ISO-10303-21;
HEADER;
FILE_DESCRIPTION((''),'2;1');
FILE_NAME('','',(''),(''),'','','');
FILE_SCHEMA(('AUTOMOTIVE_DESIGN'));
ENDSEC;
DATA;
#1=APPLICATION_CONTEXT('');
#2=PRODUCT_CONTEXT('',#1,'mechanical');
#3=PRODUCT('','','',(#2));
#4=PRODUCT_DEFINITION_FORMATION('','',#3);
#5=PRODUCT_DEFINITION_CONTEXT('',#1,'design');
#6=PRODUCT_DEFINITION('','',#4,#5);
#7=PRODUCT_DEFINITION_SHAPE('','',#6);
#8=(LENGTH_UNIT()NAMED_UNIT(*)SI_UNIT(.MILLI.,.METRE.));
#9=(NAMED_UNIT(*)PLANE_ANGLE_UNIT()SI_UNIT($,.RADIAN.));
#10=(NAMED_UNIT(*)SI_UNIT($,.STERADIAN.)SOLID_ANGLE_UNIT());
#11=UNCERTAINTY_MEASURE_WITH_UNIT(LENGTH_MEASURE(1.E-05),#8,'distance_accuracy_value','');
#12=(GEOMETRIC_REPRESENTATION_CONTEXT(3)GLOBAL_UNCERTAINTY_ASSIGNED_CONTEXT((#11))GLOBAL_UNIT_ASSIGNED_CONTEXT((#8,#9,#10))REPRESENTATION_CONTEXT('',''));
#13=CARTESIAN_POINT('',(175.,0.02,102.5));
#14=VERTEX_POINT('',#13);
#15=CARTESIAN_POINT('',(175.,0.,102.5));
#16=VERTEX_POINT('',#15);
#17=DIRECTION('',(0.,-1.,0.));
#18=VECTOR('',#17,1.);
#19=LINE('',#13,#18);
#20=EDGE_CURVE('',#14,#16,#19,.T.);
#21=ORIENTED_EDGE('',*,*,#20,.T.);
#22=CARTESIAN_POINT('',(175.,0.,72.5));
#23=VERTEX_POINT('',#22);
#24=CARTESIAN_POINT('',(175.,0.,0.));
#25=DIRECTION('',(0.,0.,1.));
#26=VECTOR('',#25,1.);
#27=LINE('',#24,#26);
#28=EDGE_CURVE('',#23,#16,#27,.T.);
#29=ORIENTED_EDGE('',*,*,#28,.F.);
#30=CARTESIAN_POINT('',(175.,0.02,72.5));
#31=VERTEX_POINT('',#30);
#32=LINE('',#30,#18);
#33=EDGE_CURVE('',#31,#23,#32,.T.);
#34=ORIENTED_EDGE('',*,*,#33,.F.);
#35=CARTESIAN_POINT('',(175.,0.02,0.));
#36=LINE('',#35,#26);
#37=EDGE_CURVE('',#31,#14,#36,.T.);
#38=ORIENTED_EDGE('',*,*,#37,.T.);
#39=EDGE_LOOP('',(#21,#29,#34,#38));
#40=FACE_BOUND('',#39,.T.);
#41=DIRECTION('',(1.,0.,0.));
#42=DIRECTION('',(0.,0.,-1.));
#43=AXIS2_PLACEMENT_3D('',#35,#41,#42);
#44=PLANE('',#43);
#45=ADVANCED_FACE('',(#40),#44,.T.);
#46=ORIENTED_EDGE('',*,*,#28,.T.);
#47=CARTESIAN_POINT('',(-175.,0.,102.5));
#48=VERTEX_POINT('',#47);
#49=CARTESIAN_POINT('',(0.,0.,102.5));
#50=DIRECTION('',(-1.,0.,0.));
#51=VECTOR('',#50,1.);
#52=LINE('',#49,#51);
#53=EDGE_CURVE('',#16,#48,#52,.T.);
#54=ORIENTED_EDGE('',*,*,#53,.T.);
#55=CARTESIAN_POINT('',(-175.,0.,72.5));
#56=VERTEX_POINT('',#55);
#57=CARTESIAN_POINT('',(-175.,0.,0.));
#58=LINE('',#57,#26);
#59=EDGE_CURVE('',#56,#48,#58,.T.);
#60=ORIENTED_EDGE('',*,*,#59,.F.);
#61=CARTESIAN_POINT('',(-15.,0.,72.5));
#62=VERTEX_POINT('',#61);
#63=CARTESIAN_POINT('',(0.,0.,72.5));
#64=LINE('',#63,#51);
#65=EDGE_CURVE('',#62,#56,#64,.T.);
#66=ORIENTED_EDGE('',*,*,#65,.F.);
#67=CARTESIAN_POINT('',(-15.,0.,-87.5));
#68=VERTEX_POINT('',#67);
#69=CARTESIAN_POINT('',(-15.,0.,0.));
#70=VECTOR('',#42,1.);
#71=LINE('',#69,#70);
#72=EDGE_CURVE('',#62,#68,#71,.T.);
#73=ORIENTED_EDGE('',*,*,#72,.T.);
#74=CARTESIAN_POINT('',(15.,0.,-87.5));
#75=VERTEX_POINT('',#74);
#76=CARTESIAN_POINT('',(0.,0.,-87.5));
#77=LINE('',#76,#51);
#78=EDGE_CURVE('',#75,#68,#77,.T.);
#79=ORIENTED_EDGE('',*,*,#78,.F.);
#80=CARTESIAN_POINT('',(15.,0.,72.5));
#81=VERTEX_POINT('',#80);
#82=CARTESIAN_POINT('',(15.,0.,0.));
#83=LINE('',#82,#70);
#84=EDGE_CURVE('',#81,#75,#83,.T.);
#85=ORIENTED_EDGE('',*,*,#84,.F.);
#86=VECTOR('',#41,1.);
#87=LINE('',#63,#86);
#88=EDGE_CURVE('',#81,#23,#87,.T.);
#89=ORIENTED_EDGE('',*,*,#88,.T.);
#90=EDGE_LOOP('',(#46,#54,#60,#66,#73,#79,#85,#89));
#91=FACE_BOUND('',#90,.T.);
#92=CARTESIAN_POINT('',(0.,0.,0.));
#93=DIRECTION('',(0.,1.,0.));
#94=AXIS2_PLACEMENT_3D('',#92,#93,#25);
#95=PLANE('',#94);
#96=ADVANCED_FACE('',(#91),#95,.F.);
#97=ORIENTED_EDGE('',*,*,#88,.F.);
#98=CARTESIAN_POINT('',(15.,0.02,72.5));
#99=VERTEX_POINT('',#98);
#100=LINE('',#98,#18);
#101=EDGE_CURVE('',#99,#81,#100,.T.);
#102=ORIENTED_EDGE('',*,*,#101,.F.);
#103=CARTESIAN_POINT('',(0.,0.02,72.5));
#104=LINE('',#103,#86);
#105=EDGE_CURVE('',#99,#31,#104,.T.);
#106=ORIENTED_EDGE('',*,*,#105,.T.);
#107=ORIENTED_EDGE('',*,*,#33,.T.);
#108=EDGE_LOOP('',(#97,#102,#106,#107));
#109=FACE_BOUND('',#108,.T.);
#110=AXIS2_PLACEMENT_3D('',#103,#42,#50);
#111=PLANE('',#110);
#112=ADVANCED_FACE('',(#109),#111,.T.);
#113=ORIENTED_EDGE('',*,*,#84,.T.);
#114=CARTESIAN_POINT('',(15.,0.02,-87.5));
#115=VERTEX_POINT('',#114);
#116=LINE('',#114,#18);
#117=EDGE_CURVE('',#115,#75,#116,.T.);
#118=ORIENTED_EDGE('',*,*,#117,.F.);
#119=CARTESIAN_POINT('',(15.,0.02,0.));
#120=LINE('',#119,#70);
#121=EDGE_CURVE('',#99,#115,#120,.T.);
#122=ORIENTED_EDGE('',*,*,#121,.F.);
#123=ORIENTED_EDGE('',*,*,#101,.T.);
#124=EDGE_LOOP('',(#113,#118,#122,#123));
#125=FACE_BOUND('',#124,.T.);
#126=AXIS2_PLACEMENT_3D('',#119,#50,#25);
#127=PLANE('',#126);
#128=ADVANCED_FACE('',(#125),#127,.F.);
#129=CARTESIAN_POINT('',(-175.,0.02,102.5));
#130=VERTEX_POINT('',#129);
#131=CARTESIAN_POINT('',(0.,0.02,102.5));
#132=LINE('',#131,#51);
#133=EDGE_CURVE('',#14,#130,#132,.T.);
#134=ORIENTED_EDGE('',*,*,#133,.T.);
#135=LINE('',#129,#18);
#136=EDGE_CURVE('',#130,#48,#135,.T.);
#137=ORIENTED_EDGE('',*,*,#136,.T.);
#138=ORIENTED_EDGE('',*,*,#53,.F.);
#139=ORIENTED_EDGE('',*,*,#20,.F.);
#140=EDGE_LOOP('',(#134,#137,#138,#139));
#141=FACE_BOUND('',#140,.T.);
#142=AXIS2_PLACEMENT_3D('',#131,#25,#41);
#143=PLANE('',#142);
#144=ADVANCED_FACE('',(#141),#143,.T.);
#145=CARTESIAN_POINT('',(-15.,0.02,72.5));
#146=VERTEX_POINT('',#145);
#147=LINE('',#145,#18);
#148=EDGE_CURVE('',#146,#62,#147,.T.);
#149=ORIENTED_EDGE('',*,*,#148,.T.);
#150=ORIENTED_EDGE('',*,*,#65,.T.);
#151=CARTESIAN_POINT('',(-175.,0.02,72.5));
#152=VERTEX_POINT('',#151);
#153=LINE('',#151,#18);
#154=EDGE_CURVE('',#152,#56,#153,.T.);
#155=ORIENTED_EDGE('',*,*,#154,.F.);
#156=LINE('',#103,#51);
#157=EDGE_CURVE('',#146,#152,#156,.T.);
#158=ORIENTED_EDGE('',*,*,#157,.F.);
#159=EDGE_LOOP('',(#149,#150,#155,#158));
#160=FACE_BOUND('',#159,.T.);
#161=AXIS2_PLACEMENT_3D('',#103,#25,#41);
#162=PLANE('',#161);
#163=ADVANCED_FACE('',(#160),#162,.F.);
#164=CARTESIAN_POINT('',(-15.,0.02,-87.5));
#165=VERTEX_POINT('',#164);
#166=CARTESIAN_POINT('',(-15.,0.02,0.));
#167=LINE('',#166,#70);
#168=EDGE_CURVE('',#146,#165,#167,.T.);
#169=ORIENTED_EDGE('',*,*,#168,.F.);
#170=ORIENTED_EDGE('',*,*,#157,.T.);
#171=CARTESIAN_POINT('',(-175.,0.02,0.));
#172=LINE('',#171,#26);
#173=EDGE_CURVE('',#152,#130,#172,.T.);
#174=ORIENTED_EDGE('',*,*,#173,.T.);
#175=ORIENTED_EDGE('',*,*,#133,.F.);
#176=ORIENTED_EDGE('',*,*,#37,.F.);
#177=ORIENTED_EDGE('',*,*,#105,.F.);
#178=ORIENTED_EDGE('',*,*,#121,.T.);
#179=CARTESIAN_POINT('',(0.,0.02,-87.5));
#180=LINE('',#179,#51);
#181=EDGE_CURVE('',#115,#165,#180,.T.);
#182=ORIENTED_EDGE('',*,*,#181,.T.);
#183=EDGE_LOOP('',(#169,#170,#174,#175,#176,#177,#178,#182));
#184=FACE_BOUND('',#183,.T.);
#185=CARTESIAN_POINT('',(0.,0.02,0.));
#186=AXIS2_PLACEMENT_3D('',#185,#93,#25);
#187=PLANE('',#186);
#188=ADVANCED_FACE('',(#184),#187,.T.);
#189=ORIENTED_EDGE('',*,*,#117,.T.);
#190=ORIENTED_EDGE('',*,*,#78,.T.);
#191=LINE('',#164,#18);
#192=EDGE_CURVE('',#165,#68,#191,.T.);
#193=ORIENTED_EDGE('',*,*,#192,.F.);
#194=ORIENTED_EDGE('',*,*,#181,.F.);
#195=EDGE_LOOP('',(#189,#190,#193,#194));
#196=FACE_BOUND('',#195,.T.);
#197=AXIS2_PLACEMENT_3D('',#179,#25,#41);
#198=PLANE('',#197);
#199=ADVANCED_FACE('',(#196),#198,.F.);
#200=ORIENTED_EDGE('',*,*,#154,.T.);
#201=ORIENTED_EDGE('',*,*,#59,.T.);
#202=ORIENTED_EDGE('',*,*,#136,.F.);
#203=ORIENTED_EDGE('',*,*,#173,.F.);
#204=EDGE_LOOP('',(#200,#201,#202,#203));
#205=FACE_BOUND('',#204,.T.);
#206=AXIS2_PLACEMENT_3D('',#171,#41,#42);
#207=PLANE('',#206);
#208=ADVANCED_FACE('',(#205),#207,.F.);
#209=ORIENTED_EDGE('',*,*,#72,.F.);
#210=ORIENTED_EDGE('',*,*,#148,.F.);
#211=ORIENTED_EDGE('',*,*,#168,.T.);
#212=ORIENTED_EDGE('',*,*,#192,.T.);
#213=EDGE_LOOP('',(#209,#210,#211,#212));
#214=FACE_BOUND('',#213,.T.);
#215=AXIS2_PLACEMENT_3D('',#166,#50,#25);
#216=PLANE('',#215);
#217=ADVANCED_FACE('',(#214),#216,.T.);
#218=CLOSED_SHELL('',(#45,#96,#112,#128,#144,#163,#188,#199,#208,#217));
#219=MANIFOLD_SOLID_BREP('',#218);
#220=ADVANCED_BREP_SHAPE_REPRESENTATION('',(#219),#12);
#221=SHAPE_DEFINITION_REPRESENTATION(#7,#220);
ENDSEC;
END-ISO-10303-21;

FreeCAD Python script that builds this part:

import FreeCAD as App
import Part
import Sketcher
Q = App.Units.Quantity


def add_polygon(sketch, points):
    """Adds a closed chain of lines whose ends are joined by coincident constraints."""
    first, n = sketch.GeometryCount, len(points)
    for a, b in zip(points, points[1:] + points[:1]):
        sketch.addGeometry(Part.LineSegment(App.Vector(*a, 0), App.Vector(*b, 0)), False)
    for i in range(n):
        sketch.addConstraint(Sketcher.Constraint("Coincident", first + i, 2, first + (i + 1) % n, 1))

doc = App.newDocument("Part")
params = doc.addObject("Spreadsheet::Sheet", "Params")
for row, (alias, value) in enumerate([
    ("sketch1_width", "30 mm"),
    ("sketch1_width2", "160 mm"),
    ("pad1_length", "0.02 mm"),
], start=1):
    params.set(f"A{row}", alias)
    params.set(f"B{row}", "=" + value)
    params.setAlias(f"B{row}", alias)

body = doc.addObject("PartDesign::Body", "Body")

# Sketch on XZ plane
sketch1 = doc.addObject("Sketcher::SketchObject", "Sketch")
body.addObject(sketch1)
sketch1.AttachmentSupport = (doc.XZ_Plane, [""])
sketch1.MapMode = "FlatFace"
add_polygon(sketch1, [(15, 72), (15, -88), (-15, -88), (-15, 72), (-175, 72), (-175, 102), (175, 102), (175, 72)])  # lines 0-7
sketch1.addConstraint(Sketcher.Constraint("Vertical", 0))
sketch1.addConstraint(Sketcher.Constraint("Horizontal", 1))
sketch1.addConstraint(Sketcher.Constraint("Vertical", 2))
sketch1.addConstraint(Sketcher.Constraint("Horizontal", 3))
sketch1.addConstraint(Sketcher.Constraint("Vertical", 4))
sketch1.addConstraint(Sketcher.Constraint("Horizontal", 5))
sketch1.addConstraint(Sketcher.Constraint("Vertical", 6))
sketch1.addConstraint(Sketcher.Constraint("Horizontal", 7))
sketch1.addConstraint(Sketcher.Constraint("Symmetric", 3, 2, 6, 2, -2))
sketch1.addConstraint(Sketcher.Constraint("Equal", 3, 7))
sketch1.addConstraint(Sketcher.Constraint("Equal", 7, 0))
sketch1.addConstraint(Sketcher.Constraint("Equal", 1, 4))
sketch1.addConstraint(Sketcher.Constraint("DistanceX", 1, 2, 1, 1, Q("30 mm")))
sketch1.addConstraint(Sketcher.Constraint("DistanceX", 3, 2, 3, 1, Q("160 mm")))
sketch1.addConstraint(Sketcher.Constraint("DistanceY", 0, 2, -1, 1, Q("87.5 mm")))
sketch1.setExpression("Constraints[20]", "Params.sketch1_width")
sketch1.setExpression("Constraints[21]", "Params.sketch1_width2")
pad1 = doc.addObject("PartDesign::Pad", "Pad")
body.addObject(pad1)
pad1.Profile = sketch1
pad1.setExpression("Length", "Params.pad1_length")
pad1.Reversed = True

doc.recompute()
